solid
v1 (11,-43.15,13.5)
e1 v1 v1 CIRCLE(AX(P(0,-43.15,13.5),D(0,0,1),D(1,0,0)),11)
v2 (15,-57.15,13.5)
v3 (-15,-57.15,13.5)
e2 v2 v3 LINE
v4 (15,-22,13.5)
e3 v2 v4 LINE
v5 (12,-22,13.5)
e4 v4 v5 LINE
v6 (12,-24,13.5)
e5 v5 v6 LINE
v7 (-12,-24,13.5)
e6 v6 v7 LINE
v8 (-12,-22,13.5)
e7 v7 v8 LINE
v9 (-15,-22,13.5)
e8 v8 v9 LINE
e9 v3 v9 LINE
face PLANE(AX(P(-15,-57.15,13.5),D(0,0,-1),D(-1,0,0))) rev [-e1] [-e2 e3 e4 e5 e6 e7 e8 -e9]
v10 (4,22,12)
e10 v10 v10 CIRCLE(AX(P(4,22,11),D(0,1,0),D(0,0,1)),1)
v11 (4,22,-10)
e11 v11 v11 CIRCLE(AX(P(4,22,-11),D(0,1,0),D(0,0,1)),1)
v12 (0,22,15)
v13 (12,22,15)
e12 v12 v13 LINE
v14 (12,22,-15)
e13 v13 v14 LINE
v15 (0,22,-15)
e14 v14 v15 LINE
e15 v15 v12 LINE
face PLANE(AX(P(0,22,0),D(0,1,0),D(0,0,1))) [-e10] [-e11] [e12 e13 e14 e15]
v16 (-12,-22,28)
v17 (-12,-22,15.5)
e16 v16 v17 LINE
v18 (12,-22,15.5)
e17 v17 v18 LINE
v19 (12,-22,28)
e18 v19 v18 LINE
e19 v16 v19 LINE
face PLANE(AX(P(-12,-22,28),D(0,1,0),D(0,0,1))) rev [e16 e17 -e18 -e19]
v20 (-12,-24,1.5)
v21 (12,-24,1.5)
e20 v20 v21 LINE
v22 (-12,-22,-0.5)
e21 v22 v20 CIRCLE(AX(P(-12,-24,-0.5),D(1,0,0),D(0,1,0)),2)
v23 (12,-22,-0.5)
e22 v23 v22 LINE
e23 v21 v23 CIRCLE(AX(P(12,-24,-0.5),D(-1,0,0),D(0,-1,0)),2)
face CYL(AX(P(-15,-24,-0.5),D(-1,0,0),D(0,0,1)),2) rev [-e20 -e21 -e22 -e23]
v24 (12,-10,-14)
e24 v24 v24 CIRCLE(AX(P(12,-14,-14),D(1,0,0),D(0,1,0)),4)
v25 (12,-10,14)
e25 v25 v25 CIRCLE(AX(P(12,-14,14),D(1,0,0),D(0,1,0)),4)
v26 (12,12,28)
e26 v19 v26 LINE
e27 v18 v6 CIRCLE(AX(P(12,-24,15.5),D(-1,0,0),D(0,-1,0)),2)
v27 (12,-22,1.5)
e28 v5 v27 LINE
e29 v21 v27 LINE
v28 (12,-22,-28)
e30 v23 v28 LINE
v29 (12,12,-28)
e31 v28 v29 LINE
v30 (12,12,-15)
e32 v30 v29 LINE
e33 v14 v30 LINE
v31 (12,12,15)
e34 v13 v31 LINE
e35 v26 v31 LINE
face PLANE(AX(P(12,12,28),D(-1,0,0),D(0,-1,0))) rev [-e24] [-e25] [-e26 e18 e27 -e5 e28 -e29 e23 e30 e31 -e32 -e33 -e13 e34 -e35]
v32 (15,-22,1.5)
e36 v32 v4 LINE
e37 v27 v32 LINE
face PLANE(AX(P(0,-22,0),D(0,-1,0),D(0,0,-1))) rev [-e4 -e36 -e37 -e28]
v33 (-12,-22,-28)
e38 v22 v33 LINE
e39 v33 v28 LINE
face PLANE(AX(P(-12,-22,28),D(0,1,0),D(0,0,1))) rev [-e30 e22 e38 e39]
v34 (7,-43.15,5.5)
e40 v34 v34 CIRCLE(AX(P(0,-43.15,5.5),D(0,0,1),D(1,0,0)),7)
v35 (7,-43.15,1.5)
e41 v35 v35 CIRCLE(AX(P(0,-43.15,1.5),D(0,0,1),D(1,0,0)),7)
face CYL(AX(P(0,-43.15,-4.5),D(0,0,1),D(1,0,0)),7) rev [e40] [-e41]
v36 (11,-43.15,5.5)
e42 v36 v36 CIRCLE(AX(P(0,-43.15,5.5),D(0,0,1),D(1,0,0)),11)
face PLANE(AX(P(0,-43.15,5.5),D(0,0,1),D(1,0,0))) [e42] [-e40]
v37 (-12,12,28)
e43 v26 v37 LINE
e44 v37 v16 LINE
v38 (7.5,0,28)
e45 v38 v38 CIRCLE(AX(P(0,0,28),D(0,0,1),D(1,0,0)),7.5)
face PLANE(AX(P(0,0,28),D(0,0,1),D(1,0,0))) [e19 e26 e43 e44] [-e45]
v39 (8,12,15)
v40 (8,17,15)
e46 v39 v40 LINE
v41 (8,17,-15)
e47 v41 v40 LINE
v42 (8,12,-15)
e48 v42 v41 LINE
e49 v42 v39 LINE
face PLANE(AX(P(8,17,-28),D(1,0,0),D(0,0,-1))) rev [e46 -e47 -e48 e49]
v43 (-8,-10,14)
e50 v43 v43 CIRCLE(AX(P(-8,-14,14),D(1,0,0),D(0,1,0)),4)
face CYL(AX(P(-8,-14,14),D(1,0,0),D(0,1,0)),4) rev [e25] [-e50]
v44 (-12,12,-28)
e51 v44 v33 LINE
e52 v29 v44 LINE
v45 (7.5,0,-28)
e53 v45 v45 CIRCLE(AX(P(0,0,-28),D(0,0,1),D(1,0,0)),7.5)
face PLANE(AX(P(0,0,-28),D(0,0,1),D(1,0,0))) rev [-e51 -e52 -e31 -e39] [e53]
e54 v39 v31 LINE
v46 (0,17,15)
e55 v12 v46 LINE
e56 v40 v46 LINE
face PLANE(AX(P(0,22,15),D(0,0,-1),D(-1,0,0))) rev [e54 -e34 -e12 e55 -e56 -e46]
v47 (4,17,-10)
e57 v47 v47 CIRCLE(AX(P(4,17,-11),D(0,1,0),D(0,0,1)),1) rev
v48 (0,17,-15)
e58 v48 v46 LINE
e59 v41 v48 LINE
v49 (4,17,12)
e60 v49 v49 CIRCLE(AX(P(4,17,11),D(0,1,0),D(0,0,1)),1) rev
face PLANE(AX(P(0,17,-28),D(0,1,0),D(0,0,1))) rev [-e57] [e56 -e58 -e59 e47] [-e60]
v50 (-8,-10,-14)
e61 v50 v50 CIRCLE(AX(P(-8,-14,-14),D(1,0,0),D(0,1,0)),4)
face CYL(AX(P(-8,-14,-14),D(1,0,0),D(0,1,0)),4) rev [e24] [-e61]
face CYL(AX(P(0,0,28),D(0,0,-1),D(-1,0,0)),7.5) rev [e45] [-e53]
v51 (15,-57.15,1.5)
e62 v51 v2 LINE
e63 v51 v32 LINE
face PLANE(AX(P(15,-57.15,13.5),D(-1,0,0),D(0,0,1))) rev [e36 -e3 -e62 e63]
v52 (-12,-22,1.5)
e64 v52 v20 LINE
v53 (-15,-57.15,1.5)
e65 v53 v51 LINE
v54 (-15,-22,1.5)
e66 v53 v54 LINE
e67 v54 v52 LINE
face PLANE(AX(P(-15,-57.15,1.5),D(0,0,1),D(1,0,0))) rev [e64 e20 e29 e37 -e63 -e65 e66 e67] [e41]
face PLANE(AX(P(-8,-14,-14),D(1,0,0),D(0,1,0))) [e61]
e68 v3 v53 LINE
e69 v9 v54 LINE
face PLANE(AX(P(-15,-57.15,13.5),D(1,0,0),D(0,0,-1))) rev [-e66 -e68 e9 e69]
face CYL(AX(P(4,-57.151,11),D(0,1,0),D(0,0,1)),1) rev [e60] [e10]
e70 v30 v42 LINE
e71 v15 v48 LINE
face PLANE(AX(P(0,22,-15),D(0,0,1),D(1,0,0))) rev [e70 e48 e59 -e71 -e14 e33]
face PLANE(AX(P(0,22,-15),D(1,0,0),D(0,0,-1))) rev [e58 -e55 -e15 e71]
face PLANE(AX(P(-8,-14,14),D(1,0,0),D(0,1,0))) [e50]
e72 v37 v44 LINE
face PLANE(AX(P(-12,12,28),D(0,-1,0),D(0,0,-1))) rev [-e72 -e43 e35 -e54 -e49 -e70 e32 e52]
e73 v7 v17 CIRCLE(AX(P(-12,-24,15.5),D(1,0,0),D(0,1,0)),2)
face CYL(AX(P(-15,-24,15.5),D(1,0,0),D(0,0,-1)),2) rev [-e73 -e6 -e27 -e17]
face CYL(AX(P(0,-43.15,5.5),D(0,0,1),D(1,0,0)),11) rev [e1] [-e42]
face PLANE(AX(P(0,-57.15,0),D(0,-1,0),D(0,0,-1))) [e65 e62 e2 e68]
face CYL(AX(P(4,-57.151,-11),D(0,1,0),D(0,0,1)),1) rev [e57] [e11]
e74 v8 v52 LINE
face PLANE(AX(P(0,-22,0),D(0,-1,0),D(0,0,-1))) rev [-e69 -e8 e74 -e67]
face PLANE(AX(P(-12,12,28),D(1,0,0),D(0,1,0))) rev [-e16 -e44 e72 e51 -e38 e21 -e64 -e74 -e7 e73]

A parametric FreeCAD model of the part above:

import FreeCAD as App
import Part
import Sketcher
Q = App.Units.Quantity


def edges_at(feature, points):
    """Names of the edges that pass closest to the given points."""
    edges = feature.Shape.Edges
    near = lambda p: min(range(len(edges)), key=lambda i: edges[i].distToShape(Part.Vertex(*p))[0])
    return sorted({f"Edge{near(p) + 1}" for p in points})


def add_polygon(sketch, points):
    """Adds a closed chain of lines whose ends are joined by coincident constraints."""
    first, n = sketch.GeometryCount, len(points)
    for a, b in zip(points, points[1:] + points[:1]):
        sketch.addGeometry(Part.LineSegment(App.Vector(*a, 0), App.Vector(*b, 0)), False)
    for i in range(n):
        sketch.addConstraint(Sketcher.Constraint("Coincident", first + i, 2, first + (i + 1) % n, 1))

doc = App.newDocument("Part")
params = doc.addObject("Spreadsheet::Sheet", "Params")
for row, (alias, value) in enumerate([
    ("sketch1_diameter", "15 mm"),
    ("sketch1_width", "24 mm"),
    ("sketch1_height", "34 mm"),
    ("pad1_length", "56 mm"),
    ("sketch2_width", "30 mm"),
    ("sketch2_height", "12 mm"),
    ("pad2_length", "35.15 mm"),
    ("sketch3_diameter", "22 mm"),
    ("pocket1_length", "8 mm"),
    ("fillet_radius", "2 mm"),
    ("sketch4_width", "12 mm"),
    ("sketch4_height", "30 mm"),
    ("pad3_length", "10 mm"),
    ("sketch5_width", "8 mm"),
    ("sketch5_height", "5 mm"),
    ("sketch6_diameter", "2 mm"),
    ("sketch7_diameter", "2 mm"),
    ("sketch8_diameter", "8 mm"),
    ("pocket5_length", "20 mm"),
    ("sketch9_diameter", "14 mm"),
    ("pocket6_length", "10 mm"),
], start=1):
    params.set(f"A{row}", alias)
    params.set(f"B{row}", "=" + value)
    params.setAlias(f"B{row}", alias)

body = doc.addObject("PartDesign::Body", "Body")

sketch1 = body.newObject("Sketcher::SketchObject", "Sketch")
sketch1.AttachmentSupport = (doc.getObject("XY_Plane"), [""])
sketch1.MapMode = "FlatFace"
add_polygon(sketch1, [(-12, 12), (-12, -22), (12, -22), (12, 12)])
sketch1.addGeometry(Part.Circle(App.Vector(0, 0, 0), App.Vector(0, 0, 1), 8), False)
sketch1.addConstraint([
    Sketcher.Constraint("Vertical", 0),
    Sketcher.Constraint("Horizontal", 1),
    Sketcher.Constraint("Vertical", 2),
    Sketcher.Constraint("Horizontal", 3),
    Sketcher.Constraint("Coincident", 4, 3, -1, 1),
    Sketcher.Constraint("Diameter", 4, Q("15 mm")),
    Sketcher.Constraint("DistanceX", 1, 1, 1, 2, Q("24 mm")),
    Sketcher.Constraint("DistanceY", 0, 2, 0, 1, Q("34 mm")),
    Sketcher.Constraint("DistanceX", 0, 2, -1, 1, Q("12 mm")),
    Sketcher.Constraint("DistanceY", 0, 2, -1, 1, Q("22 mm")),
])
sketch1.setExpression("Constraints[9]", "Params.sketch1_diameter")
sketch1.setExpression("Constraints[10]", "Params.sketch1_width")
sketch1.setExpression("Constraints[11]", "Params.sketch1_height")
pad1 = body.newObject("PartDesign::Pad", "Pad")
pad1.Profile = sketch1
pad1.setExpression("Length", "Params.pad1_length")
pad1.Midplane = True

sketch2 = body.newObject("Sketcher::SketchObject", "Sketch001")
sketch2.AttachmentSupport = (doc.getObject("XZ_Plane"), [""])
sketch2.MapMode = "FlatFace"
sketch2.AttachmentOffset = App.Placement(App.Vector(0, 0, 22), App.Rotation())
add_polygon(sketch2, [(-15, 14), (-15, 2), (15, 2), (15, 14)])
sketch2.addConstraint([
    Sketcher.Constraint("Vertical", 0),
    Sketcher.Constraint("Horizontal", 1),
    Sketcher.Constraint("Vertical", 2),
    Sketcher.Constraint("Horizontal", 3),
    Sketcher.Constraint("DistanceX", 1, 1, 1, 2, Q("30 mm")),
    Sketcher.Constraint("DistanceY", 0, 2, 0, 1, Q("12 mm")),
    Sketcher.Constraint("DistanceX", 0, 2, -1, 1, Q("15 mm")),
    Sketcher.Constraint("DistanceY", -1, 1, 0, 2, Q("1.5 mm")),
])
sketch2.setExpression("Constraints[8]", "Params.sketch2_width")
sketch2.setExpression("Constraints[9]", "Params.sketch2_height")
pad2 = body.newObject("PartDesign::Pad", "Pad001")
pad2.Profile = sketch2
pad2.setExpression("Length", "Params.pad2_length")

sketch3 = body.newObject("Sketcher::SketchObject", "Sketch002")
sketch3.AttachmentSupport = (doc.getObject("XY_Plane"), [""])
sketch3.MapMode = "FlatFace"
sketch3.AttachmentOffset = App.Placement(App.Vector(0, 0, 13.5), App.Rotation())
sketch3.addGeometry(Part.Circle(App.Vector(0, -43, 0), App.Vector(0, 0, 1), 11), False)
sketch3.addConstraint([
    Sketcher.Constraint("PointOnObject", 0, 3, -2),
    Sketcher.Constraint("Diameter", 0, Q("22 mm")),
    Sketcher.Constraint("DistanceY", 0, 3, -1, 1, Q("43.15 mm")),
])
sketch3.setExpression("Constraints[1]", "Params.sketch3_diameter")
pocket1 = body.newObject("PartDesign::Pocket", "Pocket")
pocket1.Profile = sketch3
pocket1.setExpression("Length", "Params.pocket1_length")
doc.recompute()

fillet = body.newObject("PartDesign::Fillet", "Fillet")
fillet.Base = (pocket1, edges_at(pocket1, [(0, -22, 1.5), (0, -22, 13.5)]))
fillet.setExpression("Radius", "Params.fillet_radius")

sketch4 = body.newObject("Sketcher::SketchObject", "Sketch003")
sketch4.AttachmentSupport = (doc.getObject("XZ_Plane"), [""])
sketch4.MapMode = "FlatFace"
sketch4.AttachmentOffset = App.Placement(App.Vector(0, 0, -12), App.Rotation())
add_polygon(sketch4, [(0, -15), (0, 15), (12, 15), (12, -15)])
sketch4.addConstraint([
    Sketcher.Constraint("Vertical", 0),
    Sketcher.Constraint("Horizontal", 1),
    Sketcher.Constraint("Vertical", 2),
    Sketcher.Constraint("Horizontal", 3),
    Sketcher.Constraint("Symmetric", 0, 2, 3, 2, -1, 1),
    Sketcher.Constraint("DistanceX", 1, 1, 1, 2, Q("12 mm")),
    Sketcher.Constraint("DistanceY", 0, 1, 0, 2, Q("30 mm")),
])
sketch4.setExpression("Constraints[9]", "Params.sketch4_width")
sketch4.setExpression("Constraints[10]", "Params.sketch4_height")
pad3 = body.newObject("PartDesign::Pad", "Pad002")
pad3.Profile = sketch4
pad3.setExpression("Length", "Params.pad3_length")
pad3.Reversed = True

sketch5 = body.newObject("Sketcher::SketchObject", "Sketch004")
sketch5.AttachmentSupport = (doc.getObject("XY_Plane"), [""])
sketch5.MapMode = "FlatFace"
sketch5.AttachmentOffset = App.Placement(App.Vector(0, 0, 15), App.Rotation())
add_polygon(sketch5, [(0, 17), (0, 12), (8, 12), (8, 17)])
sketch5.addConstraint([
    Sketcher.Constraint("Vertical", 0),
    Sketcher.Constraint("Horizontal", 1),
    Sketcher.Constraint("Vertical", 2),
    Sketcher.Constraint("Horizontal", 3),
    Sketcher.Constraint("PointOnObject", 0, 2, -2),
    Sketcher.Constraint("DistanceX", 1, 1, 1, 2, Q("8 mm")),
    Sketcher.Constraint("DistanceY", 0, 2, 0, 1, Q("5 mm")),
    Sketcher.Constraint("DistanceY", -1, 1, 0, 2, Q("12 mm")),
])
sketch5.setExpression("Constraints[9]", "Params.sketch5_width")
sketch5.setExpression("Constraints[10]", "Params.sketch5_height")
pocket2 = body.newObject("PartDesign::Pocket", "Pocket001")
pocket2.Profile = sketch5
pocket2.Type = "ThroughAll"

sketch6 = body.newObject("Sketcher::SketchObject", "Sketch005")
sketch6.AttachmentSupport = (doc.getObject("XZ_Plane"), [""])
sketch6.MapMode = "FlatFace"
sketch6.AttachmentOffset = App.Placement(App.Vector(0, 0, -22), App.Rotation())
sketch6.addGeometry(Part.Circle(App.Vector(4, -11, 0), App.Vector(0, 0, 1), 1), False)
sketch6.addConstraint([
    Sketcher.Constraint("Diameter", 0, Q("2 mm")),
    Sketcher.Constraint("DistanceX", -1, 1, 0, 3, Q("4 mm")),
    Sketcher.Constraint("DistanceY", 0, 3, -1, 1, Q("11 mm")),
])
sketch6.setExpression("Constraints[0]", "Params.sketch6_diameter")
pocket3 = body.newObject("PartDesign::Pocket", "Pocket002")
pocket3.Profile = sketch6
pocket3.Type = "UpToFirst"
pocket3.Reversed = True

sketch7 = body.newObject("Sketcher::SketchObject", "Sketch006")
sketch7.AttachmentSupport = (doc.getObject("XZ_Plane"), [""])
sketch7.MapMode = "FlatFace"
sketch7.AttachmentOffset = App.Placement(App.Vector(0, 0, -22), App.Rotation())
sketch7.addGeometry(Part.Circle(App.Vector(4, 11, 0), App.Vector(0, 0, 1), 1), False)
sketch7.addConstraint([
    Sketcher.Constraint("Diameter", 0, Q("2 mm")),
    Sketcher.Constraint("DistanceX", -1, 1, 0, 3, Q("4 mm")),
    Sketcher.Constraint("DistanceY", -1, 1, 0, 3, Q("11 mm")),
])
sketch7.setExpression("Constraints[0]", "Params.sketch7_diameter")
pocket4 = body.newObject("PartDesign::Pocket", "Pocket003")
pocket4.Profile = sketch7
pocket4.Type = "UpToFirst"
pocket4.Reversed = True

sketch8 = body.newObject("Sketcher::SketchObject", "Sketch007")
sketch8.AttachmentSupport = (doc.getObject("YZ_Plane"), [""])
sketch8.MapMode = "FlatFace"
sketch8.AttachmentOffset = App.Placement(App.Vector(0, 0, 12), App.Rotation())
sketch8.addGeometry([
    Part.Circle(App.Vector(-14, 14, 0), App.Vector(0, 0, 1), 4),
    Part.Circle(App.Vector(-14, -14, 0), App.Vector(0, 0, 1), 4),
], False)
sketch8.addConstraint([
    Sketcher.Constraint("Equal", 0, 1),
    Sketcher.Constraint("Symmetric", 0, 3, 1, 3, -1),
    Sketcher.Constraint("Diameter", 0, Q("8 mm")),
    Sketcher.Constraint("DistanceX", 0, 3, -1, 1, Q("14 mm")),
    Sketcher.Constraint("DistanceY", -1, 1, 0, 3, Q("14 mm")),
])
sketch8.setExpression("Constraints[2]", "Params.sketch8_diameter")
pocket5 = body.newObject("PartDesign::Pocket", "Pocket004")
pocket5.Profile = sketch8
pocket5.setExpression("Length", "Params.pocket5_length")

sketch9 = body.newObject("Sketcher::SketchObject", "Sketch008")
sketch9.AttachmentSupport = (doc.getObject("XY_Plane"), [""])
sketch9.MapMode = "FlatFace"
sketch9.AttachmentOffset = App.Placement(App.Vector(0, 0, 5.5), App.Rotation())
sketch9.addGeometry(Part.Circle(App.Vector(0, -43, 0), App.Vector(0, 0, 1), 7), False)
sketch9.addConstraint([
    Sketcher.Constraint("PointOnObject", 0, 3, -2),
    Sketcher.Constraint("Diameter", 0, Q("14 mm")),
    Sketcher.Constraint("DistanceY", 0, 3, -1, 1, Q("43.15 mm")),
])
sketch9.setExpression("Constraints[1]", "Params.sketch9_diameter")
pocket6 = body.newObject("PartDesign::Pocket", "Pocket005")
pocket6.Profile = sketch9
pocket6.setExpression("Length", "Params.pocket6_length")

doc.recompute()
